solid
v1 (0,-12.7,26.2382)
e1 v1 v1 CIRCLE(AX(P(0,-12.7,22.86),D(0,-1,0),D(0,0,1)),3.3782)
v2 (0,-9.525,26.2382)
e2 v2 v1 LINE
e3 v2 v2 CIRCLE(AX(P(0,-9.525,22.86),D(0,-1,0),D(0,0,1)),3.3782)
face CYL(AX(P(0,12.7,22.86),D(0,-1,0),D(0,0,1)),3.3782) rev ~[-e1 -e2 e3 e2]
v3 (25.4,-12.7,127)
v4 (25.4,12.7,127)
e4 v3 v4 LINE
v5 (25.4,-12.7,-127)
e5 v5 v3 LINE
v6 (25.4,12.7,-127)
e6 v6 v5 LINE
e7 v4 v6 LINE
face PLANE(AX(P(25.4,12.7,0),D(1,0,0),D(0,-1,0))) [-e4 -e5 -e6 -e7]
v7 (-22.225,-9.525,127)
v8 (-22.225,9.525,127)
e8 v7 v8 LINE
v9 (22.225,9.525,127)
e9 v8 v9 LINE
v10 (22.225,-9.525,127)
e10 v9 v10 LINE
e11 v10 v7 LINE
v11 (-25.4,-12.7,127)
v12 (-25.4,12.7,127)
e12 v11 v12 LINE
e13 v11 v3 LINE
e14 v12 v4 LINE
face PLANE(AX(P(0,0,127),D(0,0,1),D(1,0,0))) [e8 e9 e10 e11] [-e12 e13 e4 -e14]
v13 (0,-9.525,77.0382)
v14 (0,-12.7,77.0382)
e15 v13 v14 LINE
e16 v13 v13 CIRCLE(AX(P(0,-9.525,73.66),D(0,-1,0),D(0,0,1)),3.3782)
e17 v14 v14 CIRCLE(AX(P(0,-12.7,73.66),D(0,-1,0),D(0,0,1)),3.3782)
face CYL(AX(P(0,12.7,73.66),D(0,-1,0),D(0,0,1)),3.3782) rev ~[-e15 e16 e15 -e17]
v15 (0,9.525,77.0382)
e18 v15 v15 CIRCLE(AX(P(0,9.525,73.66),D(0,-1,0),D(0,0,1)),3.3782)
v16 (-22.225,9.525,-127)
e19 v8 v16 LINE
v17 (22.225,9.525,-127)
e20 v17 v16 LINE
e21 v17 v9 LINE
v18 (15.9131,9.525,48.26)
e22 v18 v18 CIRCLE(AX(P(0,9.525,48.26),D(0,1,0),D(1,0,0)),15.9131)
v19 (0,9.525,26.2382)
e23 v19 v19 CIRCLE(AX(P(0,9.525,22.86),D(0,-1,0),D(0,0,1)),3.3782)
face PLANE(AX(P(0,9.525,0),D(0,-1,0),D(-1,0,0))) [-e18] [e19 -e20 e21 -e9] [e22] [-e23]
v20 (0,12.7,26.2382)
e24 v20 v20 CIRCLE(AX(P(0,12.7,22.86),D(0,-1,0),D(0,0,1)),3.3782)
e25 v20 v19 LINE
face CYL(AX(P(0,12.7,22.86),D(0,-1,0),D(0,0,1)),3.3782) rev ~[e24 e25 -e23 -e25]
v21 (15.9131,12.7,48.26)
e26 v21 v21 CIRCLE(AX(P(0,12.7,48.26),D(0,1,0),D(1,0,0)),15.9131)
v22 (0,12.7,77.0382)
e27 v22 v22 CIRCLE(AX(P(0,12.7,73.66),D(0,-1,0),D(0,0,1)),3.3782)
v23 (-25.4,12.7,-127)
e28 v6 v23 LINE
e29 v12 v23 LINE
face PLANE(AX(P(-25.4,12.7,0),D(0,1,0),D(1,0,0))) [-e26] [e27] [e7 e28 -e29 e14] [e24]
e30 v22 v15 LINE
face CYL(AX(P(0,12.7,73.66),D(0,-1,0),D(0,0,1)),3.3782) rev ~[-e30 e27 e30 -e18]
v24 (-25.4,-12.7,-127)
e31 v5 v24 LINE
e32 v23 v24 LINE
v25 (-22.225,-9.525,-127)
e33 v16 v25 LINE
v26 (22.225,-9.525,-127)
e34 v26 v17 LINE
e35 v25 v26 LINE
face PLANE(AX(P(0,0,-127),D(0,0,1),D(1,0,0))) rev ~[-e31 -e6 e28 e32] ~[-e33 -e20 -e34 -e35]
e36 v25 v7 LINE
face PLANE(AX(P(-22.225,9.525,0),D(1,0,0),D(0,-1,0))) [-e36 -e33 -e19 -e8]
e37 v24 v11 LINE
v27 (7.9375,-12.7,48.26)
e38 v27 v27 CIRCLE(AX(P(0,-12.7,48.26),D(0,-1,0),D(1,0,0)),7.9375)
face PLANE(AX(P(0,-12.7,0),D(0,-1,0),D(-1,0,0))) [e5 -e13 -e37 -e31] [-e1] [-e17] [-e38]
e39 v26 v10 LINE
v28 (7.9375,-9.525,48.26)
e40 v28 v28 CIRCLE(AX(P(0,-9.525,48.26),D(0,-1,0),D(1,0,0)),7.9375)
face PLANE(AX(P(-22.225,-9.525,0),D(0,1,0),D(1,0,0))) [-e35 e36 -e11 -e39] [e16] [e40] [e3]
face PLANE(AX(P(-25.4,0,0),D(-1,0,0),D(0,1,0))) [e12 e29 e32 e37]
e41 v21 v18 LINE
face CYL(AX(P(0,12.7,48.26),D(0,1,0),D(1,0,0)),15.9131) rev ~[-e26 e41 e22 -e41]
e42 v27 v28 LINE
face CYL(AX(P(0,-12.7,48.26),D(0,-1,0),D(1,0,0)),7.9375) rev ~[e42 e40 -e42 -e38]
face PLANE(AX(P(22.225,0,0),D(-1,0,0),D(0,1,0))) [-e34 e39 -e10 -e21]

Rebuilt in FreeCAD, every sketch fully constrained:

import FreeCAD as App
import Part
import Sketcher
from FreeCAD import Vector
Q = App.Units.Quantity


def add_polygon(sketch, points):
    """Adds a closed chain of lines whose ends are joined by coincident constraints."""
    first, n = sketch.GeometryCount, len(points)
    for a, b in zip(points, points[1:] + points[:1]):
        sketch.addGeometry(Part.LineSegment(App.Vector(*a, 0), App.Vector(*b, 0)), False)
    for i in range(n):
        sketch.addConstraint(Sketcher.Constraint("Coincident", first + i, 2, first + (i + 1) % n, 1))

doc = App.newDocument("Part")
body = doc.addObject("PartDesign::Body", "Body")

sketch1 = body.newObject("Sketcher::SketchObject", "Sketch")
sketch1.AttachmentSupport = (doc.getObject("XY_Plane"), [""])
sketch1.MapMode = "FlatFace"
add_polygon(sketch1, [(-25.4, 12.7), (-25.4, -12.7), (25.4, -12.7), (25.4, 12.7)])
add_polygon(sketch1, [(-22.225, 9.525), (22.225, 9.525), (22.225, -9.525), (-22.225, -9.525)])
sketch1.addConstraint([
    Sketcher.Constraint("Vertical", 0),
    Sketcher.Constraint("Horizontal", 1),
    Sketcher.Constraint("Vertical", 2),
    Sketcher.Constraint("Horizontal", 3),
    Sketcher.Constraint("Horizontal", 4),
    Sketcher.Constraint("Vertical", 5),
    Sketcher.Constraint("Horizontal", 6),
    Sketcher.Constraint("Vertical", 7),
    Sketcher.Constraint("Symmetric", 0, 2, 2, 2, -1, 1),
    Sketcher.Constraint("Symmetric", 4, 2, 6, 2, -1, 1),
    Sketcher.Constraint("DistanceX", 1, 1, 1, 2, Q("2 in")),
    Sketcher.Constraint("DistanceY", 0, 2, 0, 1, Q("1 in")),
    Sketcher.Constraint("DistanceX", 4, 2, 2, 2, Q("0.125 in")),
    Sketcher.Constraint("DistanceY", 4, 2, 2, 2, Q("0.125 in")),
])
pad1 = body.newObject("PartDesign::Pad", "Pad")
pad1.Profile = sketch1
pad1.Length = Q("10 in")
pad1.Midplane = True

sketch2 = body.newObject("Sketcher::SketchObject", "Sketch001")
sketch2.AttachmentSupport = (doc.getObject("XZ_Plane"), [""])
sketch2.MapMode = "FlatFace"
sketch2.AttachmentOffset = App.Placement(Vector(0, 0, -0.5 * 25.4), App.Rotation())
sketch2.addGeometry(Part.Circle(Vector(0, 48.26, 0), Vector(0, 0, 1), 15.9131), False)
sketch2.addConstraint([
    Sketcher.Constraint("PointOnObject", 0, 3, -2),
    Sketcher.Constraint("Diameter", 0, Q("1.253 in")),
    Sketcher.Constraint("DistanceY", -1, 1, 0, 3, Q("1.9 in")),
])
pocket1 = body.newObject("PartDesign::Pocket", "Pocket")
pocket1.Profile = sketch2
pocket1.Length = Q("0.125 in")
pocket1.Reversed = True

sketch3 = body.newObject("Sketcher::SketchObject", "Sketch002")
sketch3.AttachmentSupport = (doc.getObject("XZ_Plane"), [""])
sketch3.MapMode = "FlatFace"
sketch3.AttachmentOffset = App.Placement(Vector(0, 0, 0.5 * 25.4), App.Rotation())
sketch3.addGeometry(Part.Circle(Vector(0, 48.26, 0), Vector(0, 0, 1), 7.9375), False)
sketch3.addConstraint([
    Sketcher.Constraint("PointOnObject", 0, 3, -2),
    Sketcher.Constraint("Diameter", 0, Q("0.625 in")),
    Sketcher.Constraint("DistanceY", -1, 1, 0, 3, Q("1.9 in")),
])
pocket2 = body.newObject("PartDesign::Pocket", "Pocket001")
pocket2.Profile = sketch3
pocket2.Length = Q("0.125 in")

sketch4 = body.newObject("Sketcher::SketchObject", "Sketch003")
sketch4.AttachmentSupport = (doc.getObject("XZ_Plane"), [""])
sketch4.MapMode = "FlatFace"
sketch4.AttachmentOffset = App.Placement(Vector(0, 0, -0.5 * 25.4), App.Rotation())
sketch4.addGeometry([
    Part.Circle(Vector(0, 22.86, 0), Vector(0, 0, 1), 3.3782),
    Part.Circle(Vector(0, 73.66, 0), Vector(0, 0, 1), 3.3782),
], False)
sketch4.addConstraint([
    Sketcher.Constraint("Equal", 0, 1),
    Sketcher.Constraint("PointOnObject", 0, 3, -2),
    Sketcher.Constraint("PointOnObject", 1, 3, -2),
    Sketcher.Constraint("Diameter", 0, Q("0.266 in")),
    Sketcher.Constraint("DistanceY", 0, 3, 1, 3, Q("2 in")),
    Sketcher.Constraint("DistanceY", -1, 1, 0, 3, Q("0.9 in")),
])
doc.recompute()
hole = body.newObject("PartDesign::Hole", "Hole")
hole.Profile = sketch4
hole.ThreadType = "None"
hole.Diameter = Q("0.266 in")
hole.DepthType = "ThroughAll"
hole.Reversed = True

doc.recompute()
